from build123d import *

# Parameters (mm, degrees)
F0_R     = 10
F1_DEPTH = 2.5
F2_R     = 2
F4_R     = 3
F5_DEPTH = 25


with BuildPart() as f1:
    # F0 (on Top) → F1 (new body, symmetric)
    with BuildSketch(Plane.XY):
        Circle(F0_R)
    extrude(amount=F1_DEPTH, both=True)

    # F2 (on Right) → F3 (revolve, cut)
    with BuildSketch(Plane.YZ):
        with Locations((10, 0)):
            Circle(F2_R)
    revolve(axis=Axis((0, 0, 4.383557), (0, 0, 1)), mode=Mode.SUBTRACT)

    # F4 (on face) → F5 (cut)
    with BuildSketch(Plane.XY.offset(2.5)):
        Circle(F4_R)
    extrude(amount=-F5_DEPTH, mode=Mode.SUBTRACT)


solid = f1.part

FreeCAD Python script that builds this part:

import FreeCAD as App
import Part
import Sketcher
from FreeCAD import Vector
Q = App.Units.Quantity

doc = App.newDocument("Part")
body = doc.addObject("PartDesign::Body", "Body")

# Sketch on XY plane
sketch1 = doc.addObject("Sketcher::SketchObject", "Sketch")
body.addObject(sketch1)
sketch1.AttachmentSupport = (doc.XY_Plane, [""])
sketch1.MapMode = "FlatFace"
sketch1.addGeometry(Part.Circle(Vector(0, 0, 0), Vector(0, 0, 1), 10), False)
sketch1.addConstraint([
    Sketcher.Constraint("Coincident", 0, 3, -1, 1),
    Sketcher.Constraint("Diameter", 0, Q("20 mm")),
])
pad1 = doc.addObject("PartDesign::Pad", "Pad")
body.addObject(pad1)
pad1.Profile = sketch1
pad1.Length = 5
pad1.Midplane = True

# Sketch on YZ plane
sketch2 = doc.addObject("Sketcher::SketchObject", "Sketch001")
body.addObject(sketch2)
sketch2.AttachmentSupport = (doc.YZ_Plane, [""])
sketch2.MapMode = "FlatFace"
sketch2.addGeometry(Part.Circle(Vector(10, 0, 0), Vector(0, 0, 1), 2), False)
sketch2.addConstraint([
    Sketcher.Constraint("PointOnObject", 0, 3, -1),
    Sketcher.Constraint("Diameter", 0, Q("4 mm")),
    Sketcher.Constraint("DistanceX", -1, 1, 0, 3, Q("10 mm")),
])
groove = doc.addObject("PartDesign::Groove", "Groove")
body.addObject(groove)
groove.Profile = sketch2
groove.ReferenceAxis = (sketch2, ["V_Axis"])
groove.Angle = 360

# Sketch on XY plane
sketch3 = doc.addObject("Sketcher::SketchObject", "Sketch002")
body.addObject(sketch3)
sketch3.AttachmentSupport = (doc.XY_Plane, [""])
sketch3.MapMode = "FlatFace"
sketch3.AttachmentOffset = App.Placement(Vector(0, 0, 2.5), App.Rotation())
sketch3.addGeometry(Part.Circle(Vector(0, 0, 0), Vector(0, 0, 1), 3), False)
sketch3.addConstraint([
    Sketcher.Constraint("Coincident", 0, 3, -1, 1),
    Sketcher.Constraint("Diameter", 0, Q("6 mm")),
])
pocket1 = doc.addObject("PartDesign::Pocket", "Pocket")
body.addObject(pocket1)
pocket1.Profile = sketch3
pocket1.Length = 25

doc.recompute()
